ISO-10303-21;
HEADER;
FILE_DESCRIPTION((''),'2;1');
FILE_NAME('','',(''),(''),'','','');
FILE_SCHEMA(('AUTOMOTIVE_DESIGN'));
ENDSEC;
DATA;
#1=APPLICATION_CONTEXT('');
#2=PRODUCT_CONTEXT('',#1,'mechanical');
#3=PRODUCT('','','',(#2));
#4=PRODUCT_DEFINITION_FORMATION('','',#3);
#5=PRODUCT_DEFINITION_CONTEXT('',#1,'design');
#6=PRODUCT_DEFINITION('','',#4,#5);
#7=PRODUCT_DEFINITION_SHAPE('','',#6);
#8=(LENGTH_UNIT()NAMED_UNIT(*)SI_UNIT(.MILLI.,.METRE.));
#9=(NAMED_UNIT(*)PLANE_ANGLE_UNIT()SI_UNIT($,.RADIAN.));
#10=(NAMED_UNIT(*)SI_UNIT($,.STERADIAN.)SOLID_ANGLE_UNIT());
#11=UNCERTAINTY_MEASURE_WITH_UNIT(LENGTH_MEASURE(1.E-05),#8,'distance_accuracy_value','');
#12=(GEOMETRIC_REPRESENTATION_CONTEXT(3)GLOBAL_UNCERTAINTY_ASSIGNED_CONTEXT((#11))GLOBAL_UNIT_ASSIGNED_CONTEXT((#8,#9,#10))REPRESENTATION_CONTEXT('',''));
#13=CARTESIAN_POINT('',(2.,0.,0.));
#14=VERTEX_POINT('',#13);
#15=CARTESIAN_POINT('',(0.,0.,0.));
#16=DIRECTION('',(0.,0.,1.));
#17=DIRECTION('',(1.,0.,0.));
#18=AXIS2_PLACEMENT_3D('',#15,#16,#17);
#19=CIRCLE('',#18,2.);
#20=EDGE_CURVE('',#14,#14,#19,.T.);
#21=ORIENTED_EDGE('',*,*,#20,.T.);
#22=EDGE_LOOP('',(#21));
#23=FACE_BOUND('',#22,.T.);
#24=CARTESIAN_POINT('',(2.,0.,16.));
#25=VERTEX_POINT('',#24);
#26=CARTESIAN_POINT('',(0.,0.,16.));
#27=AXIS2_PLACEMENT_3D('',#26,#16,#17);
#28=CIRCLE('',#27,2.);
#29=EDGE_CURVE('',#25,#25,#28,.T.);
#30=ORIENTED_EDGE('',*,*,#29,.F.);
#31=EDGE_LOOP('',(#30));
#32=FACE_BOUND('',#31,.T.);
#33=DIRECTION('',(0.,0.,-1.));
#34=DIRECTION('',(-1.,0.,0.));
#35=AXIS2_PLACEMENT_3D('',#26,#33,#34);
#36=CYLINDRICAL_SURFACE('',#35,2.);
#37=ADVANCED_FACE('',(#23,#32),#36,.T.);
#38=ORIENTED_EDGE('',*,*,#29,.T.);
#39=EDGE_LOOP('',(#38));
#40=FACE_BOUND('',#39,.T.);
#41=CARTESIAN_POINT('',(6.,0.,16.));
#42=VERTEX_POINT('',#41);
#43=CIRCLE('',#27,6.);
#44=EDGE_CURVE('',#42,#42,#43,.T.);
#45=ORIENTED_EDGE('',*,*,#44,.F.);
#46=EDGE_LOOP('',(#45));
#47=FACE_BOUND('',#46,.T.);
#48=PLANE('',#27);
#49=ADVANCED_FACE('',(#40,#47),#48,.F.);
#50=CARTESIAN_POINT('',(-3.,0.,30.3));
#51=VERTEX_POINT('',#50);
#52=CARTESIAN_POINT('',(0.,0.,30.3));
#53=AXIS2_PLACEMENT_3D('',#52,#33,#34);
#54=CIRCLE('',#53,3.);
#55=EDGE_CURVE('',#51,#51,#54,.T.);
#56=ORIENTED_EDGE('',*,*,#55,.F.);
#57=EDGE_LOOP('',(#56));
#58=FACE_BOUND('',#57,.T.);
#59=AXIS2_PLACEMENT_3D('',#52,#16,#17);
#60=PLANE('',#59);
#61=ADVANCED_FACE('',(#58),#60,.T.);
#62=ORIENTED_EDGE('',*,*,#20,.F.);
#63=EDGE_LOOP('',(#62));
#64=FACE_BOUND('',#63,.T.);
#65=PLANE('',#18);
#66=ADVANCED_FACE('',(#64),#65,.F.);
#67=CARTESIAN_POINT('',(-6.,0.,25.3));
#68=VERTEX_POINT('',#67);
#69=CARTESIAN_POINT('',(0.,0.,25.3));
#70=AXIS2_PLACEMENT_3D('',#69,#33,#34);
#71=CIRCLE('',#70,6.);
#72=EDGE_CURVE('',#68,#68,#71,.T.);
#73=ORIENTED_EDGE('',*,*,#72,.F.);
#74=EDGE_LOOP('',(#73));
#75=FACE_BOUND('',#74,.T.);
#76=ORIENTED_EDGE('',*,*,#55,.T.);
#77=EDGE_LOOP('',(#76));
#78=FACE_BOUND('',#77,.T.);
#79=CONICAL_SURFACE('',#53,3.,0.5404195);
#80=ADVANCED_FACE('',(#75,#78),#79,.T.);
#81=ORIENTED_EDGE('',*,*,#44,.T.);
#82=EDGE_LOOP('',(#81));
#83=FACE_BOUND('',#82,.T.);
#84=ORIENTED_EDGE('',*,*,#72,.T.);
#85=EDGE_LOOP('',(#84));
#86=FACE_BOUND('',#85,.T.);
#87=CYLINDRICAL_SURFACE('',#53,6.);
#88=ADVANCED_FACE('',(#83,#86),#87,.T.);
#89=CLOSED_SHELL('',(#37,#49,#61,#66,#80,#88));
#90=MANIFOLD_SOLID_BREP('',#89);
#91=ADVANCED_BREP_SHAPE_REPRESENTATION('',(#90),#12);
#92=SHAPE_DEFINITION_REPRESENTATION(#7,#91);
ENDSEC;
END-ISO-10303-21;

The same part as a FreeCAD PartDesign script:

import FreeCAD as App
import Part
import Sketcher

doc = App.newDocument("Part")
params = doc.addObject("Spreadsheet::Sheet", "Params")
for row, (alias, value) in enumerate([
    ("sketch1_diameter", "4 mm"),
    ("pad1_length", "16 mm"),
    ("sketch2_diameter", "12 mm"),
    ("pad2_length", "14.3 mm"),
    ("sketch3_width", "3 mm"),
    ("sketch3_height", "5 mm"),
    ("groove_angle", "360 deg"),
], start=1):
    params.set(f"A{row}", alias)
    params.set(f"B{row}", "=" + value)
    params.setAlias(f"B{row}", alias)

body = doc.addObject("PartDesign::Body", "Body")

# Sketch on XY plane
sketch1 = body.newObject("Sketcher::SketchObject", "Sketch")
sketch1.AttachmentSupport = (doc.getObject("XY_Plane"), [""])
sketch1.MapMode = "FlatFace"
sketch1.addGeometry(Part.Circle(App.Vector(0, 0, 0), App.Vector(0, 0, 1), 2), False)
sketch1.addConstraint([
    Sketcher.Constraint("Coincident", 0, 3, -1, 1),
    Sketcher.Constraint("Diameter", 0, 4.0),
])
sketch1.setExpression("Constraints[1]", "Params.sketch1_diameter")
pad1 = body.newObject("PartDesign::Pad", "Pad")
pad1.Profile = sketch1
pad1.setExpression("Length", "Params.pad1_length")

# Sketch on XY plane
sketch2 = body.newObject("Sketcher::SketchObject", "Sketch001")
sketch2.AttachmentSupport = (doc.getObject("XY_Plane"), [""])
sketch2.MapMode = "FlatFace"
sketch2.AttachmentOffset = App.Placement(App.Vector(0, 0, 16), App.Rotation())
sketch2.addGeometry(Part.Circle(App.Vector(0, 0, 0), App.Vector(0, 0, 1), 6), False)
sketch2.addConstraint([
    Sketcher.Constraint("Coincident", 0, 3, -1, 1),
    Sketcher.Constraint("Diameter", 0, 12.0),
])
sketch2.setExpression("Constraints[1]", "Params.sketch2_diameter")
pad2 = body.newObject("PartDesign::Pad", "Pad001")
pad2.Profile = sketch2
pad2.setExpression("Length", "Params.pad2_length")

# Sketch on XZ plane
sketch3 = body.newObject("Sketcher::SketchObject", "Sketch002")
sketch3.AttachmentSupport = (doc.getObject("XZ_Plane"), [""])
sketch3.MapMode = "FlatFace"
sketch3.addGeometry([
    Part.LineSegment(App.Vector(-3, 30.3, 0), App.Vector(-6, 25.3, 0)),
    Part.LineSegment(App.Vector(-6, 25.3, 0), App.Vector(-6, 30.3, 0)),
    Part.LineSegment(App.Vector(-6, 30.3, 0), App.Vector(-3, 30.3, 0)),
], False)
sketch3.addConstraint([
    Sketcher.Constraint("Coincident", 0, 2, 1, 1),
    Sketcher.Constraint("Coincident", 1, 2, 2, 1),
    Sketcher.Constraint("Coincident", 2, 2, 0, 1),
    Sketcher.Constraint("Vertical", 1),
    Sketcher.Constraint("Horizontal", 2),
    Sketcher.Constraint("DistanceX", 2, 1, 2, 2, 3.0),
    Sketcher.Constraint("DistanceY", 1, 1, 1, 2, 5.0),
    Sketcher.Constraint("DistanceX", 0, 2, -1, 1, 6.0),
    Sketcher.Constraint("DistanceY", -1, 1, 0, 2, 25.3),
])
sketch3.setExpression("Constraints[5]", "Params.sketch3_width")
sketch3.setExpression("Constraints[6]", "Params.sketch3_height")
groove = body.newObject("PartDesign::Groove", "Groove")
groove.Profile = sketch3
groove.ReferenceAxis = (sketch3, ["V_Axis"])
groove.setExpression("Angle", "Params.groove_angle")

doc.recompute()
